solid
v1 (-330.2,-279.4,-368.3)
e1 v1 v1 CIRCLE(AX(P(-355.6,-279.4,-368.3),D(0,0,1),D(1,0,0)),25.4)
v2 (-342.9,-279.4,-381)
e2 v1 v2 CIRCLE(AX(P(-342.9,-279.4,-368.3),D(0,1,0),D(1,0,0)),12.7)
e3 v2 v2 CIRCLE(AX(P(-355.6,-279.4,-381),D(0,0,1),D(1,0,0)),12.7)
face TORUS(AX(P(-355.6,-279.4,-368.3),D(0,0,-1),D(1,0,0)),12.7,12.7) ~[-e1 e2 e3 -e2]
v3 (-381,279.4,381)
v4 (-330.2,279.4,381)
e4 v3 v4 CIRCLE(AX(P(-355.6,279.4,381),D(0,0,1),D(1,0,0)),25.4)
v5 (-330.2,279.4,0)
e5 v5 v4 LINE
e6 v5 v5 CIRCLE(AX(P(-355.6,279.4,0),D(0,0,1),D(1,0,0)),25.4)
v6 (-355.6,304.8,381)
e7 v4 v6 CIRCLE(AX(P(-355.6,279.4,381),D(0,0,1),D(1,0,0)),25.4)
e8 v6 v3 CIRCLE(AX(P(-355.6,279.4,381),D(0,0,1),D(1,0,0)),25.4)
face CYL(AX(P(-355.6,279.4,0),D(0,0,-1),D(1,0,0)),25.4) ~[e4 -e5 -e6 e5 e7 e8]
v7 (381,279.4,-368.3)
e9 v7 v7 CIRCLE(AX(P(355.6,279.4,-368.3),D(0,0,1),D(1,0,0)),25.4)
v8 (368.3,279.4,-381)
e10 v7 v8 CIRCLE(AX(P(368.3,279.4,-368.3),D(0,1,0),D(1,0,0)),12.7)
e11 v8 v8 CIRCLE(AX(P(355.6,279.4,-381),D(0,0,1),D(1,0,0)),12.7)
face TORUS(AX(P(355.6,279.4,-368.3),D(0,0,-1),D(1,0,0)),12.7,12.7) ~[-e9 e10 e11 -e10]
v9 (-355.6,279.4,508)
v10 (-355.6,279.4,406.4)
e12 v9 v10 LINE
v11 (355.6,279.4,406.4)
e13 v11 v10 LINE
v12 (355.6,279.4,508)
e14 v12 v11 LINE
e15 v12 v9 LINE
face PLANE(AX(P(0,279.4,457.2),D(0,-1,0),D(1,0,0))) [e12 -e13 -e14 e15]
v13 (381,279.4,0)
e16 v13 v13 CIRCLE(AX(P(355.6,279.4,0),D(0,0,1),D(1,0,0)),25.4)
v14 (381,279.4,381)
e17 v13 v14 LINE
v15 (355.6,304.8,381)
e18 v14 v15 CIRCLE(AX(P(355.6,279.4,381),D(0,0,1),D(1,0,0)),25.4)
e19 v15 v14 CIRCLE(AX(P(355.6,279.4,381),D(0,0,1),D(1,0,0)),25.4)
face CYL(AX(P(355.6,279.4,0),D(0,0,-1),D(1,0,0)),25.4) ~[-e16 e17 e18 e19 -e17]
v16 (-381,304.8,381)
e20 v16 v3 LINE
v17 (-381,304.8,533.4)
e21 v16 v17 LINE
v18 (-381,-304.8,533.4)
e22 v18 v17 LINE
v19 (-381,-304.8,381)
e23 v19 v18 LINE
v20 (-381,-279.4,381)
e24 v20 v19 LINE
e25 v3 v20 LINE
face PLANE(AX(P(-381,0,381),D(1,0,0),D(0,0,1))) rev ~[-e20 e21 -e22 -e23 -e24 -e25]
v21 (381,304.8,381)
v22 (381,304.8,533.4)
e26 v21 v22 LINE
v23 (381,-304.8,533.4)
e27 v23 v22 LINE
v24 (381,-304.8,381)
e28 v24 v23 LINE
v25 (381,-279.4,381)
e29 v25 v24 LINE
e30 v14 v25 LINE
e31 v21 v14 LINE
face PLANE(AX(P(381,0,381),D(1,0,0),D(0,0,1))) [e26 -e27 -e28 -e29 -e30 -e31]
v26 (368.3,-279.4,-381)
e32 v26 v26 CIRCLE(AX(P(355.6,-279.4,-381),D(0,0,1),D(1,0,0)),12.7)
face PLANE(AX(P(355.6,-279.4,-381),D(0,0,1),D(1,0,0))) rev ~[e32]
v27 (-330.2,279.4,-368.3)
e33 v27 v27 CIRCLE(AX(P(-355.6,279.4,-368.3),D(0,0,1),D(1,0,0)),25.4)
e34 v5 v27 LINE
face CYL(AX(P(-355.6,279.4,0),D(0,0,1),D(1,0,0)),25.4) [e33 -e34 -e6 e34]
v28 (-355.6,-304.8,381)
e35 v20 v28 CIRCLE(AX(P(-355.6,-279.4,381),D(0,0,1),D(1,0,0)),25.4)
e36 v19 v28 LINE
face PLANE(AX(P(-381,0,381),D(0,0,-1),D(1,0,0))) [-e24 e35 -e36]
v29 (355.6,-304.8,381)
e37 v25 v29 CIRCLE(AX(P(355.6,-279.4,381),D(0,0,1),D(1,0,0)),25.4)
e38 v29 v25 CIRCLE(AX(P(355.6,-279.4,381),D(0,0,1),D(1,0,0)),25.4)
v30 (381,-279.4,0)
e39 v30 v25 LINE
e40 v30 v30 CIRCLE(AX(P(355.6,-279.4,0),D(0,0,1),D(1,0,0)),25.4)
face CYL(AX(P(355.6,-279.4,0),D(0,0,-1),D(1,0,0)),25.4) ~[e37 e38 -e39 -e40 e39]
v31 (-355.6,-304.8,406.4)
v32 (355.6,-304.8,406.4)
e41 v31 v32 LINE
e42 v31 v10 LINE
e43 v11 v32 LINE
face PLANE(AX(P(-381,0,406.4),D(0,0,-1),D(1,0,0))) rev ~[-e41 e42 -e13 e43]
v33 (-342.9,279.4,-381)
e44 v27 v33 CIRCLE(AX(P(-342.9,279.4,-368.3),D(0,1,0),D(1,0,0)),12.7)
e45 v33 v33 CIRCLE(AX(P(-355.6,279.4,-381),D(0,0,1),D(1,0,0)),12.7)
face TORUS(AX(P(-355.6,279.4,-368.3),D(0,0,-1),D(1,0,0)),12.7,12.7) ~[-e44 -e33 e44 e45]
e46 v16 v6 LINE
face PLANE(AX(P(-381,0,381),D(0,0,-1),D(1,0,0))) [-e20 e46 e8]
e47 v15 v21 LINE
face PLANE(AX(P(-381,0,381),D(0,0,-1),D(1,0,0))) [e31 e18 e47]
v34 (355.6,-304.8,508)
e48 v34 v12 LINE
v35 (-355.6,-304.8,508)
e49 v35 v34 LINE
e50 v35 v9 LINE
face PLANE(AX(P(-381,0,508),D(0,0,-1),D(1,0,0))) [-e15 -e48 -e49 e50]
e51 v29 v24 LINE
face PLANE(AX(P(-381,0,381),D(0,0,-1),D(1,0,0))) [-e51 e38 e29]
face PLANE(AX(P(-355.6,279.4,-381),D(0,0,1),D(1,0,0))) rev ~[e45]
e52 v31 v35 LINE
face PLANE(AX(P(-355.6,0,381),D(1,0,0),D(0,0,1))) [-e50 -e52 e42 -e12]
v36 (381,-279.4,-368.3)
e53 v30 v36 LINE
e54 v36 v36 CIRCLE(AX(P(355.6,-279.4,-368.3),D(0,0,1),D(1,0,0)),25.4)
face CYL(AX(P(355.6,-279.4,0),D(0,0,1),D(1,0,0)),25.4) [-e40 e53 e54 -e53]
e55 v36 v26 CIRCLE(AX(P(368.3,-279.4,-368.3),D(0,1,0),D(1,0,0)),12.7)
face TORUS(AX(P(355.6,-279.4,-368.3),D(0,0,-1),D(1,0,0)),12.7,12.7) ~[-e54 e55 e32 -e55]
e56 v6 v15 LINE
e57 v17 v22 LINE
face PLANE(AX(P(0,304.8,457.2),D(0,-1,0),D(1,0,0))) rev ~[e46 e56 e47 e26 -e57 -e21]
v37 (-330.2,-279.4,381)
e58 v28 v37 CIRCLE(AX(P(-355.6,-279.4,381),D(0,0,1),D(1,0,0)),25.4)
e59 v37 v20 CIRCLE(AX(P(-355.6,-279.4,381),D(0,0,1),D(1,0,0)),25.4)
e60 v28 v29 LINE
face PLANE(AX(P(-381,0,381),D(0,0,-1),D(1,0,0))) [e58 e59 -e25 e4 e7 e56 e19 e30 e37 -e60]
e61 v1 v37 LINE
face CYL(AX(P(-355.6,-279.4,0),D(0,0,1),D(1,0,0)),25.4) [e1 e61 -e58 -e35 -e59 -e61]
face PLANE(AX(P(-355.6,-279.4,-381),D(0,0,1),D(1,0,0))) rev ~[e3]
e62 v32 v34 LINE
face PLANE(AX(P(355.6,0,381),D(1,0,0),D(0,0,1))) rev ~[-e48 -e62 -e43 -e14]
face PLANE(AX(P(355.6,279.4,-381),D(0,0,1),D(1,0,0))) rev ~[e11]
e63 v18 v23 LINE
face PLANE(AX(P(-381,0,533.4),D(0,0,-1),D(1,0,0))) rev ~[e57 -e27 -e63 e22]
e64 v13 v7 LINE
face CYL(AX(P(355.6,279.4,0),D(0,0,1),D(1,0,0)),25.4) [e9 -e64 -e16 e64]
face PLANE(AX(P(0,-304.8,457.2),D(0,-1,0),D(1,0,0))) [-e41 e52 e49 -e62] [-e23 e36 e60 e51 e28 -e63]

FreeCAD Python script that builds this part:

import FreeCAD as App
import Part
import Sketcher
from FreeCAD import Vector
Q = App.Units.Quantity


def edges_at(feature, points):
    """Names of the edges that pass closest to the given points."""
    edges = feature.Shape.Edges
    near = lambda p: min(range(len(edges)), key=lambda i: edges[i].distToShape(Part.Vertex(*p))[0])
    return sorted({f"Edge{near(p) + 1}" for p in points})


def faces_at(feature, points):
    """Names of the faces that lie closest to the given points."""
    faces = feature.Shape.Faces
    near = lambda p: min(range(len(faces)), key=lambda i: faces[i].distToShape(Part.Vertex(*p))[0])
    return sorted({f"Face{near(p) + 1}" for p in points})

doc = App.newDocument("Part")
params = doc.addObject("Spreadsheet::Sheet", "Params")
for row, (alias, value) in enumerate([
    ("sketch1_width", "30 in"),
    ("sketch1_height", "6 in"),
    ("pad1_length", "24 in"),
    ("thickness_wall", "1 in"),
    ("sketch2_diameter", "2 in"),
    ("pad2_length", "30 in"),
    ("fillet_radius", "0.5 in"),
], start=1):
    params.set(f"A{row}", alias)
    params.set(f"B{row}", "=" + value)
    params.setAlias(f"B{row}", alias)

body = doc.addObject("PartDesign::Body", "Body")

# Sketch on XZ plane
sketch1 = doc.addObject("Sketcher::SketchObject", "Sketch")
body.addObject(sketch1)
sketch1.AttachmentSupport = (doc.XZ_Plane, [""])
sketch1.MapMode = "FlatFace"
sketch1.addGeometry([
    Part.LineSegment(Vector(-381, 533, 0), Vector(-381, 381, 0)),
    Part.LineSegment(Vector(-381, 381, 0), Vector(381, 381, 0)),
    Part.LineSegment(Vector(381, 381, 0), Vector(381, 533, 0)),
    Part.LineSegment(Vector(381, 533, 0), Vector(-381, 533, 0)),
], False)
sketch1.addConstraint([
    Sketcher.Constraint("Coincident", 0, 2, 1, 1),
    Sketcher.Constraint("Coincident", 1, 2, 2, 1),
    Sketcher.Constraint("Coincident", 2, 2, 3, 1),
    Sketcher.Constraint("Coincident", 3, 2, 0, 1),
    Sketcher.Constraint("Vertical", 0),
    Sketcher.Constraint("Horizontal", 1),
    Sketcher.Constraint("Vertical", 2),
    Sketcher.Constraint("Horizontal", 3),
    Sketcher.Constraint("DistanceX", 1, 1, 1, 2, Q("30 in")),
    Sketcher.Constraint("DistanceY", 0, 2, 0, 1, Q("6 in")),
    Sketcher.Constraint("DistanceX", 0, 2, -1, 1, Q("15 in")),
    Sketcher.Constraint("DistanceY", -1, 1, 0, 2, Q("15 in")),
])
sketch1.setExpression("Constraints[8]", "Params.sketch1_width")
sketch1.setExpression("Constraints[9]", "Params.sketch1_height")
pad1 = doc.addObject("PartDesign::Pad", "Pad")
body.addObject(pad1)
pad1.Profile = sketch1
pad1.setExpression("Length", "Params.pad1_length")
pad1.Midplane = True
doc.recompute()

thickness = doc.addObject("PartDesign::Thickness", "Thickness")
body.addObject(thickness)
thickness.Base = (pad1, faces_at(pad1, [(0, -304.8, 457.2)]))
thickness.setExpression("Value", "Params.thickness_wall")
thickness.Reversed = True
thickness.Join = "Arc"

# Sketch on XY plane
sketch2 = doc.addObject("Sketcher::SketchObject", "Sketch001")
body.addObject(sketch2)
sketch2.AttachmentSupport = (doc.XY_Plane, [""])
sketch2.MapMode = "FlatFace"
sketch2.addGeometry([
    Part.Circle(Vector(-356, 279, 0), Vector(0, 0, 1), 25),
    Part.Circle(Vector(356, 279, 0), Vector(0, 0, 1), 25),
    Part.Circle(Vector(356, -279, 0), Vector(0, 0, 1), 25),
    Part.Circle(Vector(-356, -279, 0), Vector(0, 0, 1), 25),
], False)
sketch2.addConstraint([
    Sketcher.Constraint("Equal", 0, 1),
    Sketcher.Constraint("Equal", 1, 2),
    Sketcher.Constraint("Equal", 2, 3),
    Sketcher.Constraint("Symmetric", 0, 3, 2, 3, -1, 1),
    Sketcher.Constraint("Symmetric", 1, 3, 3, 3, -1, 1),
    Sketcher.Constraint("Symmetric", 0, 3, 1, 3, -2),
    Sketcher.Constraint("Diameter", 0, Q("2 in")),
    Sketcher.Constraint("DistanceX", 0, 3, -1, 1, Q("14 in")),
    Sketcher.Constraint("DistanceY", -1, 1, 0, 3, Q("11 in")),
])
sketch2.setExpression("Constraints[6]", "Params.sketch2_diameter")
pad2 = doc.addObject("PartDesign::Pad", "Pad001")
body.addObject(pad2)
pad2.Profile = sketch2
pad2.setExpression("Length", "Params.pad2_length")
pad2.Midplane = True
doc.recompute()

fillet = doc.addObject("PartDesign::Fillet", "Fillet")
body.addObject(fillet)
fillet.Base = (pad2, edges_at(pad2, [
    (-381, 279.4, -381),
    (-381, -279.4, -381),
    (330.2, -279.4, -381),
    (330.2, 279.4, -381),
]))
fillet.setExpression("Radius", "Params.fillet_radius")

doc.recompute()
